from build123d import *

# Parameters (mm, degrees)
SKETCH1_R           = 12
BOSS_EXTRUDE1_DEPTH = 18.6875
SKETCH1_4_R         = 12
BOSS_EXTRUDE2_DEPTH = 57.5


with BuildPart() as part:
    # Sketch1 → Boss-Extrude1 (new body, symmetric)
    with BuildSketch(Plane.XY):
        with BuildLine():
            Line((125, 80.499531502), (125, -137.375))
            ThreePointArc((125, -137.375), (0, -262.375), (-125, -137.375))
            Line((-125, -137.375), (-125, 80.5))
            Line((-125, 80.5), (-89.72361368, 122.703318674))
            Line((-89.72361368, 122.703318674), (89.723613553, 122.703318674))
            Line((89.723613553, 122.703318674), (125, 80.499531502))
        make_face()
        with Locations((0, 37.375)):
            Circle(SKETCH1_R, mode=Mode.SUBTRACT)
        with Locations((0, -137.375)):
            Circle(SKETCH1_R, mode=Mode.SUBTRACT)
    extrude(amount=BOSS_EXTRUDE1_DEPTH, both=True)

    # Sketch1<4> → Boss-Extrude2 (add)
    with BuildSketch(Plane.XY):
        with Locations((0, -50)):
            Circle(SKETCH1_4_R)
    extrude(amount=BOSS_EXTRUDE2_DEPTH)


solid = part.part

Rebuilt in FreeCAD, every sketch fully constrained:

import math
import FreeCAD as App
import Part
import Sketcher
from FreeCAD import Vector

doc = App.newDocument("Part")
body = doc.addObject("PartDesign::Body", "Body")

# Sketch on XY plane
sketch1 = doc.addObject("Sketcher::SketchObject", "Sketch")
body.addObject(sketch1)
sketch1.AttachmentSupport = (doc.XY_Plane, [""])
sketch1.MapMode = "FlatFace"
sketch1.addGeometry([
    Part.LineSegment(Vector(125, -137, 0), Vector(125, 80, 0)),  # 0
    Part.LineSegment(Vector(125, 80, 0), Vector(90, 123, 0)),  # 1
    Part.LineSegment(Vector(90, 123, 0), Vector(-90, 123, 0)),  # 2
    Part.LineSegment(Vector(-90, 123, 0), Vector(-125, 80, 0)),  # 3
    Part.LineSegment(Vector(-125, 80, 0), Vector(-125, -137, 0)),  # 4
    Part.ArcOfCircle(Part.Circle(Vector(0, -137, 0), Vector(0, 0, 1), 125), math.radians(180), math.radians(360)),  # 5
    Part.Circle(Vector(0, -137, 0), Vector(0, 0, 1), 12),  # 6
    Part.Circle(Vector(0, 37, 0), Vector(0, 0, 1), 12),  # 7
], False)
sketch1.addConstraint([
    Sketcher.Constraint("Coincident", 0, 2, 1, 1),
    Sketcher.Constraint("Coincident", 1, 2, 2, 1),
    Sketcher.Constraint("Coincident", 2, 2, 3, 1),
    Sketcher.Constraint("Coincident", 3, 2, 4, 1),
    Sketcher.Constraint("Tangent", 4, 2, 5, 1),
    Sketcher.Constraint("Tangent", 5, 2, 0, 1),
    Sketcher.Constraint("Vertical", 0),
    Sketcher.Constraint("Horizontal", 2),
    Sketcher.Constraint("Vertical", 4),
    Sketcher.Constraint("Coincident", 6, 3, 5, 3),
    Sketcher.Constraint("Equal", 6, 7),
    Sketcher.Constraint("PointOnObject", 5, 3, -2),
    Sketcher.Constraint("PointOnObject", 7, 3, -2),
    Sketcher.Constraint("Diameter", 6, 24.0),
    Sketcher.Constraint("Radius", 5, 125.0),
    Sketcher.Constraint("DistanceY", -1, 1, 3, 2, 80.5),
    Sketcher.Constraint("DistanceY", 4, 2, 4, 1, 217.875),
    Sketcher.Constraint("DistanceY", 5, 3, 7, 3, 174.75),
    Sketcher.Constraint("Distance", 1, 55.005301),
    Sketcher.Constraint("DistanceY", 0, 1, 0, 2, 217.874532),
    Sketcher.Constraint("Distance", 3, 55.004941),
    Sketcher.Constraint("DistanceX", 2, 2, 2, 1, 179.447227),
])
pad1 = doc.addObject("PartDesign::Pad", "Pad")
body.addObject(pad1)
pad1.Profile = sketch1
pad1.Length = 37.375
pad1.Midplane = True

# Sketch on XY plane
sketch2 = doc.addObject("Sketcher::SketchObject", "Sketch001")
body.addObject(sketch2)
sketch2.AttachmentSupport = (doc.XY_Plane, [""])
sketch2.MapMode = "FlatFace"
sketch2.addGeometry(Part.Circle(Vector(0, -50, 0), Vector(0, 0, 1), 12), False)
sketch2.addConstraint([
    Sketcher.Constraint("PointOnObject", 0, 3, -2),
    Sketcher.Constraint("Diameter", 0, 24.0),
    Sketcher.Constraint("DistanceY", 0, 3, -1, 1, 50.0),
])
pad2 = doc.addObject("PartDesign::Pad", "Pad001")
body.addObject(pad2)
pad2.Profile = sketch2
pad2.Length = 57.5

doc.recompute()
